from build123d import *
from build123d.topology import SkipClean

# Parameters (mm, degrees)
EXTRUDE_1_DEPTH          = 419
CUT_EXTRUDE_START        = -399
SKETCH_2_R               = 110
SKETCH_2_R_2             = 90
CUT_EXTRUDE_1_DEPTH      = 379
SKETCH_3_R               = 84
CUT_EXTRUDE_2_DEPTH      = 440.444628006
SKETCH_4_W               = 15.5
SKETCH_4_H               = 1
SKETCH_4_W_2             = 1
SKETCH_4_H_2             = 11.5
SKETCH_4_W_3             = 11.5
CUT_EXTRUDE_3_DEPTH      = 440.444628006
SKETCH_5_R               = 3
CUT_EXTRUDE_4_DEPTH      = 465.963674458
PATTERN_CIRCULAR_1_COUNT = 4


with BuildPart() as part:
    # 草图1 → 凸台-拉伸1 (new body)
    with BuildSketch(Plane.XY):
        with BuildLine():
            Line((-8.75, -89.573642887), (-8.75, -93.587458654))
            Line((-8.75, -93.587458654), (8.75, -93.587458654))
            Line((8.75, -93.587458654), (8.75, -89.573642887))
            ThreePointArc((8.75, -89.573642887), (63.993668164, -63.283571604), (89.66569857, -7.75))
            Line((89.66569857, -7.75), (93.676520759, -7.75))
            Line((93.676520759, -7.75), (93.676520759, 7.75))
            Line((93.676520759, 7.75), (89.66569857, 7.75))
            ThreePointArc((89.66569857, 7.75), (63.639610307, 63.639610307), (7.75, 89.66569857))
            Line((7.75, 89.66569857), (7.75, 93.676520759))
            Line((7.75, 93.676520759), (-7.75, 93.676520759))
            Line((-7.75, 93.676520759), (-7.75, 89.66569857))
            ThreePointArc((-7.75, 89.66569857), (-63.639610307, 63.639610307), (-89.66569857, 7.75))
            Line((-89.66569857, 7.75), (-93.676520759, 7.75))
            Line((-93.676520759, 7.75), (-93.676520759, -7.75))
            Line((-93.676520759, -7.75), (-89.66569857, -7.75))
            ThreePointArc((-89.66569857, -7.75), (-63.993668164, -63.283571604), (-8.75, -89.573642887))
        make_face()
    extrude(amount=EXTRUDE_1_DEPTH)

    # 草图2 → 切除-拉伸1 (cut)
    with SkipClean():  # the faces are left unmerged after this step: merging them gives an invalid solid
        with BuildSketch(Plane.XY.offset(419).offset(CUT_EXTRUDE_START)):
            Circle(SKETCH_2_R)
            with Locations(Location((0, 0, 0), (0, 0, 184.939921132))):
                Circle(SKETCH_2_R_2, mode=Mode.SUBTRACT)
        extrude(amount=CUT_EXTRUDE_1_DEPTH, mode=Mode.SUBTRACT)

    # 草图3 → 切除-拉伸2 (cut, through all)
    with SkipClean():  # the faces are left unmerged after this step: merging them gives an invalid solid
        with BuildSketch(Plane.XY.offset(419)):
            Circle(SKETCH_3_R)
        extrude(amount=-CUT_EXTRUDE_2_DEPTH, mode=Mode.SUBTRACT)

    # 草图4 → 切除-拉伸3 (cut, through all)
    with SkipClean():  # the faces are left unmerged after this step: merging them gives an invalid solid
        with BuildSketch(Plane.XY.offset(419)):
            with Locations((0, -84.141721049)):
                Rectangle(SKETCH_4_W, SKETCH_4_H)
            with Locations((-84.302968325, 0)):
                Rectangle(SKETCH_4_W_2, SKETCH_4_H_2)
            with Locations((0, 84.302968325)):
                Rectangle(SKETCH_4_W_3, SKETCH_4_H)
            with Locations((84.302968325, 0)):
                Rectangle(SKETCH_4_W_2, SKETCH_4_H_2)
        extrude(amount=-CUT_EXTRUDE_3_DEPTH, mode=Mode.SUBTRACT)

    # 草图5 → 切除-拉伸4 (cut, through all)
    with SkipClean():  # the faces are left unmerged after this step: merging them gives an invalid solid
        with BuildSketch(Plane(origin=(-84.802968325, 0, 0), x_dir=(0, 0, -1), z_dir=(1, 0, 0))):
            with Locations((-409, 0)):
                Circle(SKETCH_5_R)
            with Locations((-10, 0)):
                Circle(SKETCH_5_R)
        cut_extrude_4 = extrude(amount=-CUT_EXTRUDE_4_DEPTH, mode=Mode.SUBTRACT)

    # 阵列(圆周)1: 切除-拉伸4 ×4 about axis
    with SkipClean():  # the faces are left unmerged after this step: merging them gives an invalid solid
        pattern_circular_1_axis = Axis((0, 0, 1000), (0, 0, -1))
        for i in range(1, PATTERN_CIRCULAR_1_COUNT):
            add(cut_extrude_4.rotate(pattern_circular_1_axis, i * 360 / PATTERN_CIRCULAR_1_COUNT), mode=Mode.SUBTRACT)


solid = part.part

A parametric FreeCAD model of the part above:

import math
import FreeCAD as App
import Part
import Sketcher
from FreeCAD import Vector


def add_polygon(sketch, points):
    """Adds a closed chain of lines whose ends are joined by coincident constraints."""
    first, n = sketch.GeometryCount, len(points)
    for a, b in zip(points, points[1:] + points[:1]):
        sketch.addGeometry(Part.LineSegment(App.Vector(*a, 0), App.Vector(*b, 0)), False)
    for i in range(n):
        sketch.addConstraint(Sketcher.Constraint("Coincident", first + i, 2, first + (i + 1) % n, 1))

doc = App.newDocument("Part")
body = doc.addObject("PartDesign::Body", "Body")

sketch1 = doc.addObject("Sketcher::SketchObject", "Sketch")
body.addObject(sketch1)
sketch1.AttachmentSupport = (doc.XY_Plane, [""])
sketch1.MapMode = "FlatFace"
sketch1.addGeometry(Part.LineSegment(Vector(-8.75, -89.573643, 0), Vector(-8.75, -93.587459, 0)), False)
sketch1.addGeometry(Part.LineSegment(Vector(-8.75, -93.587459, 0), Vector(8.75, -93.587459, 0)), False)
sketch1.addGeometry(Part.LineSegment(Vector(8.75, -93.587459, 0), Vector(8.75, -89.573643, 0)), False)
sketch1.addGeometry(Part.ArcOfCircle(Part.Circle(Vector(0, 0, 0), Vector(0, 0, 1), 90), math.radians(-84.420764), math.radians(-4.939921)), False)
sketch1.addGeometry(Part.LineSegment(Vector(89.665699, -7.75, 0), Vector(93.676521, -7.75, 0)), False)
sketch1.addGeometry(Part.LineSegment(Vector(93.676521, -7.75, 0), Vector(93.676521, 7.75, 0)), False)
sketch1.addGeometry(Part.LineSegment(Vector(93.676521, 7.75, 0), Vector(89.665699, 7.75, 0)), False)
sketch1.addGeometry(Part.ArcOfCircle(Part.Circle(Vector(0, 0, 0), Vector(0, 0, 1), 90), math.radians(4.939921), math.radians(85.060079)), False)
sketch1.addGeometry(Part.LineSegment(Vector(7.75, 89.665699, 0), Vector(7.75, 93.676521, 0)), False)
sketch1.addGeometry(Part.LineSegment(Vector(7.75, 93.676521, 0), Vector(-7.75, 93.676521, 0)), False)
sketch1.addGeometry(Part.LineSegment(Vector(-7.75, 93.676521, 0), Vector(-7.75, 89.665699, 0)), False)
sketch1.addGeometry(Part.ArcOfCircle(Part.Circle(Vector(0, 0, 0), Vector(0, 0, 1), 90), math.radians(94.939921), math.radians(175.060079)), False)
sketch1.addGeometry(Part.LineSegment(Vector(-89.665699, 7.75, 0), Vector(-93.676521, 7.75, 0)), False)
sketch1.addGeometry(Part.LineSegment(Vector(-93.676521, 7.75, 0), Vector(-93.676521, -7.75, 0)), False)
sketch1.addGeometry(Part.LineSegment(Vector(-93.676521, -7.75, 0), Vector(-89.665699, -7.75, 0)), False)
sketch1.addGeometry(Part.ArcOfCircle(Part.Circle(Vector(0, 0, 0), Vector(0, 0, 1), 90), math.radians(-175.060079), math.radians(-95.579236)), False)
sketch1.addConstraint(Sketcher.Constraint("Coincident", 0, 2, 1, 1))
sketch1.addConstraint(Sketcher.Constraint("Coincident", 1, 2, 2, 1))
sketch1.addConstraint(Sketcher.Constraint("Coincident", 2, 2, 3, 1))
sketch1.addConstraint(Sketcher.Constraint("Coincident", 3, 2, 4, 1))
sketch1.addConstraint(Sketcher.Constraint("Coincident", 4, 2, 5, 1))
sketch1.addConstraint(Sketcher.Constraint("Coincident", 5, 2, 6, 1))
sketch1.addConstraint(Sketcher.Constraint("Coincident", 6, 2, 7, 1))
sketch1.addConstraint(Sketcher.Constraint("Coincident", 7, 2, 8, 1))
sketch1.addConstraint(Sketcher.Constraint("Coincident", 8, 2, 9, 1))
sketch1.addConstraint(Sketcher.Constraint("Coincident", 9, 2, 10, 1))
sketch1.addConstraint(Sketcher.Constraint("Coincident", 10, 2, 11, 1))
sketch1.addConstraint(Sketcher.Constraint("Coincident", 11, 2, 12, 1))
sketch1.addConstraint(Sketcher.Constraint("Coincident", 12, 2, 13, 1))
sketch1.addConstraint(Sketcher.Constraint("Coincident", 13, 2, 14, 1))
sketch1.addConstraint(Sketcher.Constraint("Coincident", 14, 2, 15, 1))
sketch1.addConstraint(Sketcher.Constraint("Coincident", 15, 2, 0, 1))
sketch1.addConstraint(Sketcher.Constraint("Vertical", 0))
sketch1.addConstraint(Sketcher.Constraint("Horizontal", 1))
sketch1.addConstraint(Sketcher.Constraint("Vertical", 2))
sketch1.addConstraint(Sketcher.Constraint("Horizontal", 4))
sketch1.addConstraint(Sketcher.Constraint("Vertical", 5))
sketch1.addConstraint(Sketcher.Constraint("Horizontal", 6))
sketch1.addConstraint(Sketcher.Constraint("Vertical", 8))
sketch1.addConstraint(Sketcher.Constraint("Horizontal", 9))
sketch1.addConstraint(Sketcher.Constraint("Vertical", 10))
sketch1.addConstraint(Sketcher.Constraint("Horizontal", 12))
sketch1.addConstraint(Sketcher.Constraint("Vertical", 13))
sketch1.addConstraint(Sketcher.Constraint("Horizontal", 14))
sketch1.addConstraint(Sketcher.Constraint("Coincident", 3, 3, -1, 1))
sketch1.addConstraint(Sketcher.Constraint("Coincident", 7, 3, -1, 1))
sketch1.addConstraint(Sketcher.Constraint("Coincident", 11, 3, -1, 1))
sketch1.addConstraint(Sketcher.Constraint("Coincident", 15, 3, -1, 1))
sketch1.addConstraint(Sketcher.Constraint("Equal", 3, 7))
sketch1.addConstraint(Sketcher.Constraint("Equal", 7, 11))
sketch1.addConstraint(Sketcher.Constraint("Equal", 11, 15))
sketch1.addConstraint(Sketcher.Constraint("Symmetric", 4, 2, 12, 2, -1, 1))
sketch1.addConstraint(Sketcher.Constraint("Horizontal", 7, 2, 10, 2))
sketch1.addConstraint(Sketcher.Constraint("Horizontal", 6, 2, 11, 2))
sketch1.addConstraint(Sketcher.Constraint("Horizontal", 4, 2, 13, 2))
sketch1.addConstraint(Sketcher.Constraint("Horizontal", 2, 2, 15, 2))
sketch1.addConstraint(Sketcher.Constraint("Equal", 9, 5))
sketch1.addConstraint(Sketcher.Constraint("Equal", 14, 8))
sketch1.addConstraint(Sketcher.Constraint("Radius", 3, 90.0))
sketch1.addConstraint(Sketcher.Constraint("DistanceX", 1, 1, 1, 2, 17.5))
sketch1.addConstraint(Sketcher.Constraint("DistanceX", 9, 2, 9, 1, 15.5))
sketch1.addConstraint(Sketcher.Constraint("DistanceX", 4, 1, 4, 2, 4.010822))
sketch1.addConstraint(Sketcher.Constraint("DistanceY", 0, 2, 0, 1, 4.013816))
pad1 = doc.addObject("PartDesign::Pad", "Pad")
body.addObject(pad1)
pad1.Profile = sketch1
pad1.Length = 419

sketch2 = doc.addObject("Sketcher::SketchObject", "Sketch001")
body.addObject(sketch2)
sketch2.AttachmentSupport = (doc.XY_Plane, [""])
sketch2.MapMode = "FlatFace"
sketch2.AttachmentOffset = App.Placement(Vector(0, 0, 20), App.Rotation())
sketch2.addGeometry(Part.Circle(Vector(0, 0, 0), Vector(0, 0, 1), 110), False)
sketch2.addGeometry(Part.Circle(Vector(0, 0, 0), Vector(0, 0, 1), 90), False)
sketch2.addConstraint(Sketcher.Constraint("Coincident", 0, 3, -1, 1))
sketch2.addConstraint(Sketcher.Constraint("Coincident", 1, 3, -1, 1))
sketch2.addConstraint(Sketcher.Constraint("Diameter", 0, 220.0))
sketch2.addConstraint(Sketcher.Constraint("Diameter", 1, 180.0))
pocket1 = doc.addObject("PartDesign::Pocket", "Pocket")
body.addObject(pocket1)
pocket1.Profile = sketch2
pocket1.Length = 379
pocket1.Reversed = True

sketch3 = doc.addObject("Sketcher::SketchObject", "Sketch002")
body.addObject(sketch3)
sketch3.AttachmentSupport = (doc.XY_Plane, [""])
sketch3.MapMode = "FlatFace"
sketch3.AttachmentOffset = App.Placement(Vector(0, 0, 419), App.Rotation())
sketch3.addGeometry(Part.Circle(Vector(0, 0, 0), Vector(0, 0, 1), 84), False)
sketch3.addConstraint(Sketcher.Constraint("Coincident", 0, 3, -1, 1))
sketch3.addConstraint(Sketcher.Constraint("Diameter", 0, 168.0))
pocket2 = doc.addObject("PartDesign::Pocket", "Pocket001")
body.addObject(pocket2)
pocket2.Profile = sketch3
pocket2.Type = "ThroughAll"

sketch4 = doc.addObject("Sketcher::SketchObject", "Sketch003")
body.addObject(sketch4)
sketch4.AttachmentSupport = (doc.XY_Plane, [""])
sketch4.MapMode = "FlatFace"
sketch4.AttachmentOffset = App.Placement(Vector(0, 0, 419), App.Rotation())
add_polygon(sketch4, [(-7.75, -83.641721), (-7.75, -84.641721), (7.75, -84.641721), (7.75, -83.641721)])
add_polygon(sketch4, [(-84.802968, 5.75), (-84.802968, -5.75), (-83.802968, -5.75), (-83.802968, 5.75)])
add_polygon(sketch4, [(-5.75, 84.802968), (-5.75, 83.802968), (5.75, 83.802968), (5.75, 84.802968)])
add_polygon(sketch4, [(83.802968, 5.75), (83.802968, -5.75), (84.802968, -5.75), (84.802968, 5.75)])
sketch4.addConstraint(Sketcher.Constraint("Vertical", 0))
sketch4.addConstraint(Sketcher.Constraint("Horizontal", 1))
sketch4.addConstraint(Sketcher.Constraint("Vertical", 2))
sketch4.addConstraint(Sketcher.Constraint("Horizontal", 3))
sketch4.addConstraint(Sketcher.Constraint("Vertical", 4))
sketch4.addConstraint(Sketcher.Constraint("Horizontal", 5))
sketch4.addConstraint(Sketcher.Constraint("Vertical", 6))
sketch4.addConstraint(Sketcher.Constraint("Horizontal", 7))
sketch4.addConstraint(Sketcher.Constraint("Vertical", 8))
sketch4.addConstraint(Sketcher.Constraint("Horizontal", 9))
sketch4.addConstraint(Sketcher.Constraint("Vertical", 10))
sketch4.addConstraint(Sketcher.Constraint("Horizontal", 11))
sketch4.addConstraint(Sketcher.Constraint("Vertical", 12))
sketch4.addConstraint(Sketcher.Constraint("Horizontal", 13))
sketch4.addConstraint(Sketcher.Constraint("Vertical", 14))
sketch4.addConstraint(Sketcher.Constraint("Horizontal", 15))
sketch4.addConstraint(Sketcher.Constraint("Symmetric", 6, 2, 12, 2, -1, 1))
sketch4.addConstraint(Sketcher.Constraint("Symmetric", 4, 2, 14, 2, -1, 1))
sketch4.addConstraint(Sketcher.Constraint("Horizontal", 5, 2, 12, 2))
sketch4.addConstraint(Sketcher.Constraint("Equal", 15, 0))
sketch4.addConstraint(Sketcher.Constraint("Equal", 11, 4))
sketch4.addConstraint(Sketcher.Constraint("Equal", 2, 8))
sketch4.addConstraint(Sketcher.Constraint("DistanceX", 5, 1, 5, 2, 1.0))
sketch4.addConstraint(Sketcher.Constraint("DistanceX", 1, 1, 1, 2, 15.5))
sketch4.addConstraint(Sketcher.Constraint("DistanceX", 9, 1, 9, 2, 11.5))
sketch4.addConstraint(Sketcher.Constraint("DistanceX", 3, 2, 8, 2, 2.0))
sketch4.addConstraint(Sketcher.Constraint("DistanceX", 0, 2, -1, 1, 7.75))
sketch4.addConstraint(Sketcher.Constraint("DistanceY", 0, 2, -1, 1, 84.641721))
sketch4.addConstraint(Sketcher.Constraint("DistanceX", 4, 2, -1, 1, 84.802968))
sketch4.addConstraint(Sketcher.Constraint("DistanceY", -1, 1, 8, 2, 83.802968))
pocket3 = doc.addObject("PartDesign::Pocket", "Pocket002")
body.addObject(pocket3)
pocket3.Profile = sketch4
pocket3.Type = "ThroughAll"

sketch5 = doc.addObject("Sketcher::SketchObject", "Sketch004")
body.addObject(sketch5)
sketch5.AttachmentSupport = (doc.YZ_Plane, [""])
sketch5.MapMode = "FlatFace"
sketch5.AttachmentOffset = App.Placement(Vector(0, 0, -84.802968), App.Rotation())
sketch5.addGeometry(Part.Circle(Vector(0, 409, 0), Vector(0, 0, 1), 3), False)
sketch5.addGeometry(Part.Circle(Vector(0, 10, 0), Vector(0, 0, 1), 3), False)
sketch5.addConstraint(Sketcher.Constraint("Equal", 0, 1))
sketch5.addConstraint(Sketcher.Constraint("PointOnObject", 0, 3, -2))
sketch5.addConstraint(Sketcher.Constraint("PointOnObject", 1, 3, -2))
sketch5.addConstraint(Sketcher.Constraint("Diameter", 0, 6.0))
sketch5.addConstraint(Sketcher.Constraint("DistanceY", -1, 1, 0, 3, 409.0))
sketch5.addConstraint(Sketcher.Constraint("DistanceY", -1, 1, 1, 3, 10.0))
pocket4 = doc.addObject("PartDesign::Pocket", "Pocket003")
body.addObject(pocket4)
pocket4.Profile = sketch5
pocket4.Type = "ThroughAll"
doc.recompute()

polarpattern = doc.addObject("PartDesign::PolarPattern", "PolarPattern")
body.addObject(polarpattern)
polarpattern.Originals = [pocket4]
polarpattern.Axis = (doc.Z_Axis, [""])
polarpattern.Angle = 360
polarpattern.Occurrences = 4
body.Tip = polarpattern

doc.recompute()
